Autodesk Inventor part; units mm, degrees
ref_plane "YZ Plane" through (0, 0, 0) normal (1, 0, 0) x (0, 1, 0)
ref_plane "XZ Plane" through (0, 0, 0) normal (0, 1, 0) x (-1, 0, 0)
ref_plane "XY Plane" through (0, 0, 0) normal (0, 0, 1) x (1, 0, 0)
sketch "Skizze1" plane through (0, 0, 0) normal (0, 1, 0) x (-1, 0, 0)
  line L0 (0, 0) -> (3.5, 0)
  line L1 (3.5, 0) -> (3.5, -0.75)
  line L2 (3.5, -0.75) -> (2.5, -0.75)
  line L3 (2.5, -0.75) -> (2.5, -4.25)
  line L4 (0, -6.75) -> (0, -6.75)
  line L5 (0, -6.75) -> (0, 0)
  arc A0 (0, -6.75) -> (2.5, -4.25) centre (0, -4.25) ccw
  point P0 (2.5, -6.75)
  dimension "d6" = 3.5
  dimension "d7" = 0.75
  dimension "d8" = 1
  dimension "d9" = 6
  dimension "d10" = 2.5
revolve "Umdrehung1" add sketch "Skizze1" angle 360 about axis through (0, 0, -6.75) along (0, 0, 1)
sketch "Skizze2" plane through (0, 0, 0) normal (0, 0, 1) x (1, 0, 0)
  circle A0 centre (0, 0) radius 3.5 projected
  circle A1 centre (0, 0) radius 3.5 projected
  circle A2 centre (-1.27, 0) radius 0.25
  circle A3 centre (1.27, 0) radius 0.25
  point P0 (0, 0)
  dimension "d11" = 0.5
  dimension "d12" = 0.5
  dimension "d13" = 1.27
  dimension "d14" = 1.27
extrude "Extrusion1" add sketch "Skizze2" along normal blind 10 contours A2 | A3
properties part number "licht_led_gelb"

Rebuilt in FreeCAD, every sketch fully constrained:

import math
import FreeCAD as App
import Part
import Sketcher
from FreeCAD import Vector
Q = App.Units.Quantity

doc = App.newDocument("Part")
body = doc.addObject("PartDesign::Body", "Body")

# Sketch on XZ plane
sketch1 = body.newObject("Sketcher::SketchObject", "Sketch")
sketch1.AttachmentSupport = (doc.getObject("XZ_Plane"), [""])
sketch1.MapMode = "FlatFace"
sketch1.addGeometry([
    Part.LineSegment(Vector(-3.5, 0, 0), Vector(0, 0, 0)),  # 0
    Part.LineSegment(Vector(0, 0, 0), Vector(0, -6.75, 0)),  # 1
    Part.ArcOfCircle(Part.Circle(Vector(0, -4.25, 0), Vector(0, 0, 1), 2.5), math.radians(180), math.radians(270)),  # 2
    Part.LineSegment(Vector(-2.5, -4.25, 0), Vector(-2.5, -0.75, 0)),  # 3
    Part.LineSegment(Vector(-2.5, -0.75, 0), Vector(-3.5, -0.75, 0)),  # 4
    Part.LineSegment(Vector(-3.5, -0.75, 0), Vector(-3.5, 0, 0)),  # 5
], False)
sketch1.addConstraint([
    Sketcher.Constraint("Coincident", 0, 2, 1, 1),
    Sketcher.Constraint("Coincident", 1, 2, 2, 2),
    Sketcher.Constraint("Tangent", 2, 1, 3, 1),
    Sketcher.Constraint("Coincident", 3, 2, 4, 1),
    Sketcher.Constraint("Coincident", 4, 2, 5, 1),
    Sketcher.Constraint("Coincident", 5, 2, 0, 1),
    Sketcher.Constraint("Horizontal", 0),
    Sketcher.Constraint("Vertical", 1),
    Sketcher.Constraint("Vertical", 3),
    Sketcher.Constraint("Horizontal", 4),
    Sketcher.Constraint("Vertical", 5),
    Sketcher.Constraint("Coincident", 0, 2, -1, 1),
    Sketcher.Constraint("PointOnObject", 2, 3, -2),
    Sketcher.Constraint("Equal", 0, 3),
    Sketcher.Constraint("Radius", 2, Q("2.5 mm")),
    Sketcher.Constraint("DistanceX", 4, 2, 4, 1, Q("1 mm")),
    Sketcher.Constraint("DistanceY", 5, 1, 5, 2, Q("0.75 mm")),
])
revolution = body.newObject("PartDesign::Revolution", "Revolution")
revolution.Profile = sketch1
revolution.ReferenceAxis = (sketch1, ["V_Axis"])
revolution.Angle = 360

# Sketch on XY plane
sketch2 = body.newObject("Sketcher::SketchObject", "Sketch001")
sketch2.AttachmentSupport = (doc.getObject("XY_Plane"), [""])
sketch2.MapMode = "FlatFace"
sketch2.addGeometry([
    Part.Circle(Vector(-1.27, 0, 0), Vector(0, 0, 1), 0.25),
    Part.Circle(Vector(1.27, 0, 0), Vector(0, 0, 1), 0.25),
], False)
sketch2.addConstraint([
    Sketcher.Constraint("Equal", 0, 1),
    Sketcher.Constraint("Symmetric", 0, 3, 1, 3, -1, 1),
    Sketcher.Constraint("PointOnObject", 0, 3, -1),
    Sketcher.Constraint("Diameter", 0, Q("0.5 mm")),
    Sketcher.Constraint("DistanceX", 0, 3, -1, 1, Q("1.27 mm")),
])
pad1 = body.newObject("PartDesign::Pad", "Pad")
pad1.Profile = sketch2
pad1.Length = 10

doc.recompute()
